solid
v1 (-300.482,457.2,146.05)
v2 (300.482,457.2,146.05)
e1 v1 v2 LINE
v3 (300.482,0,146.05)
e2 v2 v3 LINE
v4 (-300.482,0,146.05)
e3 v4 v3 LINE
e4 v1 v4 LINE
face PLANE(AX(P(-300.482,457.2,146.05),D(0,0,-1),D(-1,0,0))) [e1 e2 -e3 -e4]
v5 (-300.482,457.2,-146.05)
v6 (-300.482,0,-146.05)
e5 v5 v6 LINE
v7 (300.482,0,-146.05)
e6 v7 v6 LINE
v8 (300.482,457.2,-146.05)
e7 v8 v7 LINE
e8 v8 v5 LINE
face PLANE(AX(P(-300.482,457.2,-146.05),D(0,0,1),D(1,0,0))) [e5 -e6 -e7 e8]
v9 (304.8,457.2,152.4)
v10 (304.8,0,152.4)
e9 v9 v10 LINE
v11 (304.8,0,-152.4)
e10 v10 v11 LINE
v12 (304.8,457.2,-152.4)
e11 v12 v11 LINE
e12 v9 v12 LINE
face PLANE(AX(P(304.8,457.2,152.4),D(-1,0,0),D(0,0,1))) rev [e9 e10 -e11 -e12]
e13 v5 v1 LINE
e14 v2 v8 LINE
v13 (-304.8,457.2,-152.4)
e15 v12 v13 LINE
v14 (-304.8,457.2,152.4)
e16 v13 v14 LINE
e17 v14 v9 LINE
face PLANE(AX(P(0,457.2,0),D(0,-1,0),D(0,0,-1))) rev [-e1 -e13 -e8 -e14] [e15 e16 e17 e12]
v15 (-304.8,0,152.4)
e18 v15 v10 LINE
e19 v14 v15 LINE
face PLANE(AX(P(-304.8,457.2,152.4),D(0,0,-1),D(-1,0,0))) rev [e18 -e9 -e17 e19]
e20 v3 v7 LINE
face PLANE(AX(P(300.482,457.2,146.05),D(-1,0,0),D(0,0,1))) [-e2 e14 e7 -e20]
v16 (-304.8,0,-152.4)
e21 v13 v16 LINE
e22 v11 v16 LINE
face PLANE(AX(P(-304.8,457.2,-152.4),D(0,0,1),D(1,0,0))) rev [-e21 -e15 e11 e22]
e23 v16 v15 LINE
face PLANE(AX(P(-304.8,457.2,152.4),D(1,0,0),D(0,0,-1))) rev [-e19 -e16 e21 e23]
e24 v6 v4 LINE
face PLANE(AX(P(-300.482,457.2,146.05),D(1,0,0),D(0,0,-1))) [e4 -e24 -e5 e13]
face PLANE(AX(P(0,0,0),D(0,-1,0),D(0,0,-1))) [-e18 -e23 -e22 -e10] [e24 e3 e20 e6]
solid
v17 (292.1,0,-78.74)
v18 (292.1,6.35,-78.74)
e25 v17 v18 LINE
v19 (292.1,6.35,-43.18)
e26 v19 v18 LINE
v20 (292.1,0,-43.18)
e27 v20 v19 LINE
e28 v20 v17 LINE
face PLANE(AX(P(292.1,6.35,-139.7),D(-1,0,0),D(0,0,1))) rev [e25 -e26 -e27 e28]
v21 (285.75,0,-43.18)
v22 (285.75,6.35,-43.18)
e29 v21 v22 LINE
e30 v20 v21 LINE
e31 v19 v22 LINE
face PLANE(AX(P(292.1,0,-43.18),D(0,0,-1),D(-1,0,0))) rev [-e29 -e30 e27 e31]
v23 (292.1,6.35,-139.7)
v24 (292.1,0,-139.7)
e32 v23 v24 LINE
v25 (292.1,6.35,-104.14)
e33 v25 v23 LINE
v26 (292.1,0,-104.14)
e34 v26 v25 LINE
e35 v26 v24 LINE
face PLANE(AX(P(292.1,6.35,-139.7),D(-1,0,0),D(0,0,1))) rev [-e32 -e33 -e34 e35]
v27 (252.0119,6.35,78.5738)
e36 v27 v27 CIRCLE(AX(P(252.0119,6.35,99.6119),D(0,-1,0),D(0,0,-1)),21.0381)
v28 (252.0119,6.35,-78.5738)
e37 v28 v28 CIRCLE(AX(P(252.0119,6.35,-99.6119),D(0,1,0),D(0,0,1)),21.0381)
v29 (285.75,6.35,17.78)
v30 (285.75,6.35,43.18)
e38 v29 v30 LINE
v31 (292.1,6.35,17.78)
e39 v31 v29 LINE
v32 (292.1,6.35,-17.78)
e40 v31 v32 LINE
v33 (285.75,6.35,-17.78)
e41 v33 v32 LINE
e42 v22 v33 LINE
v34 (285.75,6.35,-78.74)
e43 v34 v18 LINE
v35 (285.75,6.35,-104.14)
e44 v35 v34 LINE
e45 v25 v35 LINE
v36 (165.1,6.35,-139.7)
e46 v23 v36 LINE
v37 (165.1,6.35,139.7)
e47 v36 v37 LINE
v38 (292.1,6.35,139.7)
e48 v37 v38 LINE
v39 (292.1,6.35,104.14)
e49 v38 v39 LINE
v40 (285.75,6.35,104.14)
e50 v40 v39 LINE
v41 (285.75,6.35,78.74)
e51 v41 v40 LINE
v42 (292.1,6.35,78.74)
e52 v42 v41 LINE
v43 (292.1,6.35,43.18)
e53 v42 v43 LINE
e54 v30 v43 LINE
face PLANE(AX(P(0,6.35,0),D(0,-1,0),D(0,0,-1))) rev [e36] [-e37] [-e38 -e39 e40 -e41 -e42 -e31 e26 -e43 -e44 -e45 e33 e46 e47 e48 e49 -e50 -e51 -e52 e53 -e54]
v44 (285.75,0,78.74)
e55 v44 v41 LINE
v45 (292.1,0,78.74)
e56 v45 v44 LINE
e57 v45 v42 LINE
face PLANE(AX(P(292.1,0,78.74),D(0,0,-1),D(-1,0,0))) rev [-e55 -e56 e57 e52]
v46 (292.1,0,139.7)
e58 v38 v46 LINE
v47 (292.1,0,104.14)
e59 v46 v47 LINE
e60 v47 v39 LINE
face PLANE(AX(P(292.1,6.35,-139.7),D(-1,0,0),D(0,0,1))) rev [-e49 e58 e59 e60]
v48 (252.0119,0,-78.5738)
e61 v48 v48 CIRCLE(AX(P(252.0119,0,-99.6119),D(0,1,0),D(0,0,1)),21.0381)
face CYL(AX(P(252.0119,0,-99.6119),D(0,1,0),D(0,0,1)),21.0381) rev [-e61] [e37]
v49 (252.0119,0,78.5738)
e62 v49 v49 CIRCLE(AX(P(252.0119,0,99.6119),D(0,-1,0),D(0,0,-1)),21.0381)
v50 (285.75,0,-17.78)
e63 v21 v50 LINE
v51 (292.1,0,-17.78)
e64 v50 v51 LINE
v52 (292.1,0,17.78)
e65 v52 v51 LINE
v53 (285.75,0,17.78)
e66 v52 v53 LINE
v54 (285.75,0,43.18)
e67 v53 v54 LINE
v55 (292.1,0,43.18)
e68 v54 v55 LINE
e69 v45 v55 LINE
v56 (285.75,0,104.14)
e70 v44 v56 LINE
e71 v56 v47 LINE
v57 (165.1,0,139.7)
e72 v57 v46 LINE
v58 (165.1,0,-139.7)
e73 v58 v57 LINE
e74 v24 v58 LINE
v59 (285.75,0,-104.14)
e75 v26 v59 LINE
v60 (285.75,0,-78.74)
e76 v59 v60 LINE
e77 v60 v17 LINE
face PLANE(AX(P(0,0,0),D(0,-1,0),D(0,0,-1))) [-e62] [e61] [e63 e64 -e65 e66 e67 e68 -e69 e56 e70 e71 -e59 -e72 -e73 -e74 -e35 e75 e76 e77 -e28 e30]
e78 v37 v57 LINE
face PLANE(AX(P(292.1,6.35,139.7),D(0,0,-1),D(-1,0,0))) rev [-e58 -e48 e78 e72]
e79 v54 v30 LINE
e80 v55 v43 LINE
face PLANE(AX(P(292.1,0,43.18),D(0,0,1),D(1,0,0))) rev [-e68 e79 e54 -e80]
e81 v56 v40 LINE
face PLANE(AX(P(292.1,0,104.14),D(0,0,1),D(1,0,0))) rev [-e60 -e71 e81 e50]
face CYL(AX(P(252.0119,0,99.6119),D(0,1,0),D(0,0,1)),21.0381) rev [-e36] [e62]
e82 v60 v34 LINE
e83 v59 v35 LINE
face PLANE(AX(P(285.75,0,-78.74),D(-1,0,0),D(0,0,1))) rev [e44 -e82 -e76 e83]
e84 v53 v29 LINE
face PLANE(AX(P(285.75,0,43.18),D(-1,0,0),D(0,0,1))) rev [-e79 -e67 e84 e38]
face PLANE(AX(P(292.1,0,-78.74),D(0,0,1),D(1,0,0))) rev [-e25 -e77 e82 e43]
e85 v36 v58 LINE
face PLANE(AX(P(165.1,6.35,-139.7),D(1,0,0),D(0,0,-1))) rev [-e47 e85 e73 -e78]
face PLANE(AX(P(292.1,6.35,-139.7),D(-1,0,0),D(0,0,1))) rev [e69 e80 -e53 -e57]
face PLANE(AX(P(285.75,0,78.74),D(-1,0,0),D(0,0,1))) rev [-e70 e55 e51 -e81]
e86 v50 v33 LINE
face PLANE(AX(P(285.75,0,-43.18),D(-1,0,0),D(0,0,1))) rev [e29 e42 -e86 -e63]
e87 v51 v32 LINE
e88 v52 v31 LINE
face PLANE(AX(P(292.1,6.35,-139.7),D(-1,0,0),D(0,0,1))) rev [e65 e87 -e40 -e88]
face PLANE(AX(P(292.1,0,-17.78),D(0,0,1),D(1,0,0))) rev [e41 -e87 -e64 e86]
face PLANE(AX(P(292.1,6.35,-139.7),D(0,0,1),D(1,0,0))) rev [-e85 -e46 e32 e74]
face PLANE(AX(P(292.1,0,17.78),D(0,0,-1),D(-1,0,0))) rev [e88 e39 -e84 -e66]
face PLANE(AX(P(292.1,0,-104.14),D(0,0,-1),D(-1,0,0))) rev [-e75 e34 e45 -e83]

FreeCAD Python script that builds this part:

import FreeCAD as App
import Part
import Sketcher
from FreeCAD import Vector
Q = App.Units.Quantity

doc = App.newDocument("Part")
body = doc.addObject("PartDesign::Body", "Body")

sketch1 = doc.addObject("Sketcher::SketchObject", "Sketch")
body.addObject(sketch1)
sketch1.AttachmentSupport = (doc.XZ_Plane, [""])
sketch1.MapMode = "FlatFace"
sketch1.addGeometry(Part.LineSegment(Vector(165.1, -139.7, 0), Vector(165.1, 139.7, 0)), False)
sketch1.addGeometry(Part.LineSegment(Vector(165.1, 139.7, 0), Vector(292.1, 139.7, 0)), False)
sketch1.addGeometry(Part.LineSegment(Vector(292.1, 139.7, 0), Vector(292.1, -139.7, 0)), False)
sketch1.addGeometry(Part.LineSegment(Vector(292.1, -139.7, 0), Vector(165.1, -139.7, 0)), False)
sketch1.addConstraint(Sketcher.Constraint("Coincident", 0, 2, 1, 1))
sketch1.addConstraint(Sketcher.Constraint("Coincident", 1, 2, 2, 1))
sketch1.addConstraint(Sketcher.Constraint("Coincident", 2, 2, 3, 1))
sketch1.addConstraint(Sketcher.Constraint("Coincident", 3, 2, 0, 1))
sketch1.addConstraint(Sketcher.Constraint("Vertical", 0))
sketch1.addConstraint(Sketcher.Constraint("Horizontal", 1))
sketch1.addConstraint(Sketcher.Constraint("Vertical", 2))
sketch1.addConstraint(Sketcher.Constraint("Horizontal", 3))
sketch1.addConstraint(Sketcher.Constraint("DistanceX", 1, 1, 1, 2, Q("5 in")))
sketch1.addConstraint(Sketcher.Constraint("DistanceY", 0, 1, 0, 2, Q("11 in")))
sketch1.addConstraint(Sketcher.Constraint("DistanceX", -1, 1, 0, 2, Q("6.5 in")))
sketch1.addConstraint(Sketcher.Constraint("DistanceY", -1, 1, 0, 2, Q("5.5 in")))
pad1 = doc.addObject("PartDesign::Pad", "Pad")
body.addObject(pad1)
pad1.Profile = sketch1
pad1.Length = Q("0.25 in")
pad1.Reversed = True

sketch2 = doc.addObject("Sketcher::SketchObject", "Sketch001")
body.addObject(sketch2)
sketch2.AttachmentSupport = (doc.XZ_Plane, [""])
sketch2.MapMode = "FlatFace"
sketch2.AttachmentOffset = App.Placement(Vector(0, 0, -0.25 * 25.4), App.Rotation())
sketch2.addGeometry(Part.Circle(Vector(252.0119, -99.6119, 0), Vector(0, 0, 1), 21.0381), False)
sketch2.addConstraint(Sketcher.Constraint("Diameter", 0, Q("42.0762 mm")))
sketch2.addConstraint(Sketcher.Constraint("DistanceX", -1, 1, 0, 3, Q("252.0119 mm")))
sketch2.addConstraint(Sketcher.Constraint("DistanceY", 0, 3, -1, 1, Q("99.6119 mm")))
pocket1 = doc.addObject("PartDesign::Pocket", "Pocket")
body.addObject(pocket1)
pocket1.Profile = sketch2
pocket1.Type = "ThroughAll"
pocket1.Reversed = True
doc.recompute()

mirrored = doc.addObject("PartDesign::Mirrored", "Mirrored")
body.addObject(mirrored)
mirrored.Originals = [pocket1]
mirrored.MirrorPlane = (doc.XY_Plane, [""])
body.Tip = mirrored

sketch3 = doc.addObject("Sketcher::SketchObject", "Sketch002")
body.addObject(sketch3)
sketch3.AttachmentSupport = (doc.XZ_Plane, [""])
sketch3.MapMode = "FlatFace"
sketch3.AttachmentOffset = App.Placement(Vector(0, 0, -0.25 * 25.4), App.Rotation())
sketch3.addGeometry(Part.LineSegment(Vector(285.75, -43.18, 0), Vector(285.75, -17.78, 0)), False)
sketch3.addGeometry(Part.LineSegment(Vector(285.75, -17.78, 0), Vector(292.1, -17.78, 0)), False)
sketch3.addGeometry(Part.LineSegment(Vector(292.1, -17.78, 0), Vector(292.1, -43.18, 0)), False)
sketch3.addGeometry(Part.LineSegment(Vector(292.1, -43.18, 0), Vector(285.75, -43.18, 0)), False)
sketch3.addGeometry(Part.LineSegment(Vector(285.75, -104.14, 0), Vector(285.75, -78.74, 0)), False)
sketch3.addGeometry(Part.LineSegment(Vector(285.75, -78.74, 0), Vector(292.1, -78.74, 0)), False)
sketch3.addGeometry(Part.LineSegment(Vector(292.1, -78.74, 0), Vector(292.1, -104.14, 0)), False)
sketch3.addGeometry(Part.LineSegment(Vector(292.1, -104.14, 0), Vector(285.75, -104.14, 0)), False)
sketch3.addGeometry(Part.LineSegment(Vector(285.75, 78.74, 0), Vector(285.75, 104.14, 0)), False)
sketch3.addGeometry(Part.LineSegment(Vector(285.75, 104.14, 0), Vector(292.1, 104.14, 0)), False)
sketch3.addGeometry(Part.LineSegment(Vector(292.1, 104.14, 0), Vector(292.1, 78.74, 0)), False)
sketch3.addGeometry(Part.LineSegment(Vector(292.1, 78.74, 0), Vector(285.75, 78.74, 0)), False)
sketch3.addGeometry(Part.LineSegment(Vector(285.75, 17.78, 0), Vector(285.75, 43.18, 0)), False)
sketch3.addGeometry(Part.LineSegment(Vector(285.75, 43.18, 0), Vector(292.1, 43.18, 0)), False)
sketch3.addGeometry(Part.LineSegment(Vector(292.1, 43.18, 0), Vector(292.1, 17.78, 0)), False)
sketch3.addGeometry(Part.LineSegment(Vector(292.1, 17.78, 0), Vector(285.75, 17.78, 0)), False)
sketch3.addConstraint(Sketcher.Constraint("Coincident", 0, 2, 1, 1))
sketch3.addConstraint(Sketcher.Constraint("Coincident", 1, 2, 2, 1))
sketch3.addConstraint(Sketcher.Constraint("Coincident", 2, 2, 3, 1))
sketch3.addConstraint(Sketcher.Constraint("Coincident", 3, 2, 0, 1))
sketch3.addConstraint(Sketcher.Constraint("Coincident", 4, 2, 5, 1))
sketch3.addConstraint(Sketcher.Constraint("Coincident", 5, 2, 6, 1))
sketch3.addConstraint(Sketcher.Constraint("Coincident", 6, 2, 7, 1))
sketch3.addConstraint(Sketcher.Constraint("Coincident", 7, 2, 4, 1))
sketch3.addConstraint(Sketcher.Constraint("Coincident", 8, 2, 9, 1))
sketch3.addConstraint(Sketcher.Constraint("Coincident", 9, 2, 10, 1))
sketch3.addConstraint(Sketcher.Constraint("Coincident", 10, 2, 11, 1))
sketch3.addConstraint(Sketcher.Constraint("Coincident", 11, 2, 8, 1))
sketch3.addConstraint(Sketcher.Constraint("Coincident", 12, 2, 13, 1))
sketch3.addConstraint(Sketcher.Constraint("Coincident", 13, 2, 14, 1))
sketch3.addConstraint(Sketcher.Constraint("Coincident", 14, 2, 15, 1))
sketch3.addConstraint(Sketcher.Constraint("Coincident", 15, 2, 12, 1))
sketch3.addConstraint(Sketcher.Constraint("Vertical", 0))
sketch3.addConstraint(Sketcher.Constraint("Horizontal", 1))
sketch3.addConstraint(Sketcher.Constraint("Vertical", 2))
sketch3.addConstraint(Sketcher.Constraint("Horizontal", 3))
sketch3.addConstraint(Sketcher.Constraint("Vertical", 4))
sketch3.addConstraint(Sketcher.Constraint("Horizontal", 5))
sketch3.addConstraint(Sketcher.Constraint("Vertical", 6))
sketch3.addConstraint(Sketcher.Constraint("Horizontal", 7))
sketch3.addConstraint(Sketcher.Constraint("Vertical", 8))
sketch3.addConstraint(Sketcher.Constraint("Horizontal", 9))
sketch3.addConstraint(Sketcher.Constraint("Vertical", 10))
sketch3.addConstraint(Sketcher.Constraint("Horizontal", 11))
sketch3.addConstraint(Sketcher.Constraint("Vertical", 12))
sketch3.addConstraint(Sketcher.Constraint("Horizontal", 13))
sketch3.addConstraint(Sketcher.Constraint("Vertical", 14))
sketch3.addConstraint(Sketcher.Constraint("Horizontal", 15))
sketch3.addConstraint(Sketcher.Constraint("Symmetric", 7, 2, 8, 2, -1))
sketch3.addConstraint(Sketcher.Constraint("Symmetric", 5, 2, 10, 2, -1))
sketch3.addConstraint(Sketcher.Constraint("Symmetric", 3, 2, 12, 2, -1))
sketch3.addConstraint(Sketcher.Constraint("Symmetric", 1, 2, 14, 2, -1))
sketch3.addConstraint(Sketcher.Constraint("Vertical", 3, 2, 4, 2))
sketch3.addConstraint(Sketcher.Constraint("Vertical", 2, 2, 5, 2))
sketch3.addConstraint(Sketcher.Constraint("Equal", 2, 4))
sketch3.addConstraint(Sketcher.Constraint("DistanceY", 0, 1, 0, 2, Q("1 in")))
sketch3.addConstraint(Sketcher.Constraint("DistanceX", 1, 1, 1, 2, Q("0.25 in")))
sketch3.addConstraint(Sketcher.Constraint("DistanceY", 0, 2, -1, 1, Q("0.7 in")))
sketch3.addConstraint(Sketcher.Constraint("DistanceX", -1, 1, 1, 2, Q("11.5 in")))
sketch3.addConstraint(Sketcher.Constraint("DistanceY", 4, 2, -1, 1, Q("3.1 in")))
pocket2 = doc.addObject("PartDesign::Pocket", "Pocket001")
body.addObject(pocket2)
pocket2.Profile = sketch3
pocket2.Type = "ThroughAll"
pocket2.Reversed = True
body2 = doc.addObject("PartDesign::Body", "Body001")

sketch4 = doc.addObject("Sketcher::SketchObject", "Sketch003")
body2.addObject(sketch4)
sketch4.AttachmentSupport = (doc.getObject("XZ_Plane001"), [""])
sketch4.MapMode = "FlatFace"
sketch4.addGeometry(Part.LineSegment(Vector(-304.8, -152.4, 0), Vector(-304.8, 152.4, 0)), False)
sketch4.addGeometry(Part.LineSegment(Vector(-304.8, 152.4, 0), Vector(304.8, 152.4, 0)), False)
sketch4.addGeometry(Part.LineSegment(Vector(304.8, 152.4, 0), Vector(304.8, -152.4, 0)), False)
sketch4.addGeometry(Part.LineSegment(Vector(304.8, -152.4, 0), Vector(-304.8, -152.4, 0)), False)
sketch4.addGeometry(Part.LineSegment(Vector(300.482, 146.05, 0), Vector(-300.482, 146.05, 0)), False)
sketch4.addGeometry(Part.LineSegment(Vector(-300.482, 146.05, 0), Vector(-300.482, -146.05, 0)), False)
sketch4.addGeometry(Part.LineSegment(Vector(-300.482, -146.05, 0), Vector(300.482, -146.05, 0)), False)
sketch4.addGeometry(Part.LineSegment(Vector(300.482, -146.05, 0), Vector(300.482, 146.05, 0)), False)
sketch4.addConstraint(Sketcher.Constraint("Coincident", 0, 2, 1, 1))
sketch4.addConstraint(Sketcher.Constraint("Coincident", 1, 2, 2, 1))
sketch4.addConstraint(Sketcher.Constraint("Coincident", 2, 2, 3, 1))
sketch4.addConstraint(Sketcher.Constraint("Coincident", 3, 2, 0, 1))
sketch4.addConstraint(Sketcher.Constraint("Coincident", 4, 2, 5, 1))
sketch4.addConstraint(Sketcher.Constraint("Coincident", 5, 2, 6, 1))
sketch4.addConstraint(Sketcher.Constraint("Coincident", 6, 2, 7, 1))
sketch4.addConstraint(Sketcher.Constraint("Coincident", 7, 2, 4, 1))
sketch4.addConstraint(Sketcher.Constraint("Vertical", 0))
sketch4.addConstraint(Sketcher.Constraint("Horizontal", 1))
sketch4.addConstraint(Sketcher.Constraint("Vertical", 2))
sketch4.addConstraint(Sketcher.Constraint("Horizontal", 3))
sketch4.addConstraint(Sketcher.Constraint("Horizontal", 4))
sketch4.addConstraint(Sketcher.Constraint("Vertical", 5))
sketch4.addConstraint(Sketcher.Constraint("Horizontal", 6))
sketch4.addConstraint(Sketcher.Constraint("Vertical", 7))
sketch4.addConstraint(Sketcher.Constraint("Symmetric", 0, 2, 2, 2, -1, 1))
sketch4.addConstraint(Sketcher.Constraint("Symmetric", 4, 2, 6, 2, -1, 1))
sketch4.addConstraint(Sketcher.Constraint("DistanceX", 1, 1, 1, 2, Q("24 in")))
sketch4.addConstraint(Sketcher.Constraint("DistanceY", 0, 1, 0, 2, Q("12 in")))
sketch4.addConstraint(Sketcher.Constraint("DistanceY", 5, 2, 5, 1, Q("11.5 in")))
sketch4.addConstraint(Sketcher.Constraint("DistanceX", 4, 2, 4, 1, Q("23.66 in")))
pad2 = doc.addObject("PartDesign::Pad", "Pad001")
body2.addObject(pad2)
pad2.Profile = sketch4
pad2.Length = Q("18 in")
pad2.Reversed = True

doc.recompute()
